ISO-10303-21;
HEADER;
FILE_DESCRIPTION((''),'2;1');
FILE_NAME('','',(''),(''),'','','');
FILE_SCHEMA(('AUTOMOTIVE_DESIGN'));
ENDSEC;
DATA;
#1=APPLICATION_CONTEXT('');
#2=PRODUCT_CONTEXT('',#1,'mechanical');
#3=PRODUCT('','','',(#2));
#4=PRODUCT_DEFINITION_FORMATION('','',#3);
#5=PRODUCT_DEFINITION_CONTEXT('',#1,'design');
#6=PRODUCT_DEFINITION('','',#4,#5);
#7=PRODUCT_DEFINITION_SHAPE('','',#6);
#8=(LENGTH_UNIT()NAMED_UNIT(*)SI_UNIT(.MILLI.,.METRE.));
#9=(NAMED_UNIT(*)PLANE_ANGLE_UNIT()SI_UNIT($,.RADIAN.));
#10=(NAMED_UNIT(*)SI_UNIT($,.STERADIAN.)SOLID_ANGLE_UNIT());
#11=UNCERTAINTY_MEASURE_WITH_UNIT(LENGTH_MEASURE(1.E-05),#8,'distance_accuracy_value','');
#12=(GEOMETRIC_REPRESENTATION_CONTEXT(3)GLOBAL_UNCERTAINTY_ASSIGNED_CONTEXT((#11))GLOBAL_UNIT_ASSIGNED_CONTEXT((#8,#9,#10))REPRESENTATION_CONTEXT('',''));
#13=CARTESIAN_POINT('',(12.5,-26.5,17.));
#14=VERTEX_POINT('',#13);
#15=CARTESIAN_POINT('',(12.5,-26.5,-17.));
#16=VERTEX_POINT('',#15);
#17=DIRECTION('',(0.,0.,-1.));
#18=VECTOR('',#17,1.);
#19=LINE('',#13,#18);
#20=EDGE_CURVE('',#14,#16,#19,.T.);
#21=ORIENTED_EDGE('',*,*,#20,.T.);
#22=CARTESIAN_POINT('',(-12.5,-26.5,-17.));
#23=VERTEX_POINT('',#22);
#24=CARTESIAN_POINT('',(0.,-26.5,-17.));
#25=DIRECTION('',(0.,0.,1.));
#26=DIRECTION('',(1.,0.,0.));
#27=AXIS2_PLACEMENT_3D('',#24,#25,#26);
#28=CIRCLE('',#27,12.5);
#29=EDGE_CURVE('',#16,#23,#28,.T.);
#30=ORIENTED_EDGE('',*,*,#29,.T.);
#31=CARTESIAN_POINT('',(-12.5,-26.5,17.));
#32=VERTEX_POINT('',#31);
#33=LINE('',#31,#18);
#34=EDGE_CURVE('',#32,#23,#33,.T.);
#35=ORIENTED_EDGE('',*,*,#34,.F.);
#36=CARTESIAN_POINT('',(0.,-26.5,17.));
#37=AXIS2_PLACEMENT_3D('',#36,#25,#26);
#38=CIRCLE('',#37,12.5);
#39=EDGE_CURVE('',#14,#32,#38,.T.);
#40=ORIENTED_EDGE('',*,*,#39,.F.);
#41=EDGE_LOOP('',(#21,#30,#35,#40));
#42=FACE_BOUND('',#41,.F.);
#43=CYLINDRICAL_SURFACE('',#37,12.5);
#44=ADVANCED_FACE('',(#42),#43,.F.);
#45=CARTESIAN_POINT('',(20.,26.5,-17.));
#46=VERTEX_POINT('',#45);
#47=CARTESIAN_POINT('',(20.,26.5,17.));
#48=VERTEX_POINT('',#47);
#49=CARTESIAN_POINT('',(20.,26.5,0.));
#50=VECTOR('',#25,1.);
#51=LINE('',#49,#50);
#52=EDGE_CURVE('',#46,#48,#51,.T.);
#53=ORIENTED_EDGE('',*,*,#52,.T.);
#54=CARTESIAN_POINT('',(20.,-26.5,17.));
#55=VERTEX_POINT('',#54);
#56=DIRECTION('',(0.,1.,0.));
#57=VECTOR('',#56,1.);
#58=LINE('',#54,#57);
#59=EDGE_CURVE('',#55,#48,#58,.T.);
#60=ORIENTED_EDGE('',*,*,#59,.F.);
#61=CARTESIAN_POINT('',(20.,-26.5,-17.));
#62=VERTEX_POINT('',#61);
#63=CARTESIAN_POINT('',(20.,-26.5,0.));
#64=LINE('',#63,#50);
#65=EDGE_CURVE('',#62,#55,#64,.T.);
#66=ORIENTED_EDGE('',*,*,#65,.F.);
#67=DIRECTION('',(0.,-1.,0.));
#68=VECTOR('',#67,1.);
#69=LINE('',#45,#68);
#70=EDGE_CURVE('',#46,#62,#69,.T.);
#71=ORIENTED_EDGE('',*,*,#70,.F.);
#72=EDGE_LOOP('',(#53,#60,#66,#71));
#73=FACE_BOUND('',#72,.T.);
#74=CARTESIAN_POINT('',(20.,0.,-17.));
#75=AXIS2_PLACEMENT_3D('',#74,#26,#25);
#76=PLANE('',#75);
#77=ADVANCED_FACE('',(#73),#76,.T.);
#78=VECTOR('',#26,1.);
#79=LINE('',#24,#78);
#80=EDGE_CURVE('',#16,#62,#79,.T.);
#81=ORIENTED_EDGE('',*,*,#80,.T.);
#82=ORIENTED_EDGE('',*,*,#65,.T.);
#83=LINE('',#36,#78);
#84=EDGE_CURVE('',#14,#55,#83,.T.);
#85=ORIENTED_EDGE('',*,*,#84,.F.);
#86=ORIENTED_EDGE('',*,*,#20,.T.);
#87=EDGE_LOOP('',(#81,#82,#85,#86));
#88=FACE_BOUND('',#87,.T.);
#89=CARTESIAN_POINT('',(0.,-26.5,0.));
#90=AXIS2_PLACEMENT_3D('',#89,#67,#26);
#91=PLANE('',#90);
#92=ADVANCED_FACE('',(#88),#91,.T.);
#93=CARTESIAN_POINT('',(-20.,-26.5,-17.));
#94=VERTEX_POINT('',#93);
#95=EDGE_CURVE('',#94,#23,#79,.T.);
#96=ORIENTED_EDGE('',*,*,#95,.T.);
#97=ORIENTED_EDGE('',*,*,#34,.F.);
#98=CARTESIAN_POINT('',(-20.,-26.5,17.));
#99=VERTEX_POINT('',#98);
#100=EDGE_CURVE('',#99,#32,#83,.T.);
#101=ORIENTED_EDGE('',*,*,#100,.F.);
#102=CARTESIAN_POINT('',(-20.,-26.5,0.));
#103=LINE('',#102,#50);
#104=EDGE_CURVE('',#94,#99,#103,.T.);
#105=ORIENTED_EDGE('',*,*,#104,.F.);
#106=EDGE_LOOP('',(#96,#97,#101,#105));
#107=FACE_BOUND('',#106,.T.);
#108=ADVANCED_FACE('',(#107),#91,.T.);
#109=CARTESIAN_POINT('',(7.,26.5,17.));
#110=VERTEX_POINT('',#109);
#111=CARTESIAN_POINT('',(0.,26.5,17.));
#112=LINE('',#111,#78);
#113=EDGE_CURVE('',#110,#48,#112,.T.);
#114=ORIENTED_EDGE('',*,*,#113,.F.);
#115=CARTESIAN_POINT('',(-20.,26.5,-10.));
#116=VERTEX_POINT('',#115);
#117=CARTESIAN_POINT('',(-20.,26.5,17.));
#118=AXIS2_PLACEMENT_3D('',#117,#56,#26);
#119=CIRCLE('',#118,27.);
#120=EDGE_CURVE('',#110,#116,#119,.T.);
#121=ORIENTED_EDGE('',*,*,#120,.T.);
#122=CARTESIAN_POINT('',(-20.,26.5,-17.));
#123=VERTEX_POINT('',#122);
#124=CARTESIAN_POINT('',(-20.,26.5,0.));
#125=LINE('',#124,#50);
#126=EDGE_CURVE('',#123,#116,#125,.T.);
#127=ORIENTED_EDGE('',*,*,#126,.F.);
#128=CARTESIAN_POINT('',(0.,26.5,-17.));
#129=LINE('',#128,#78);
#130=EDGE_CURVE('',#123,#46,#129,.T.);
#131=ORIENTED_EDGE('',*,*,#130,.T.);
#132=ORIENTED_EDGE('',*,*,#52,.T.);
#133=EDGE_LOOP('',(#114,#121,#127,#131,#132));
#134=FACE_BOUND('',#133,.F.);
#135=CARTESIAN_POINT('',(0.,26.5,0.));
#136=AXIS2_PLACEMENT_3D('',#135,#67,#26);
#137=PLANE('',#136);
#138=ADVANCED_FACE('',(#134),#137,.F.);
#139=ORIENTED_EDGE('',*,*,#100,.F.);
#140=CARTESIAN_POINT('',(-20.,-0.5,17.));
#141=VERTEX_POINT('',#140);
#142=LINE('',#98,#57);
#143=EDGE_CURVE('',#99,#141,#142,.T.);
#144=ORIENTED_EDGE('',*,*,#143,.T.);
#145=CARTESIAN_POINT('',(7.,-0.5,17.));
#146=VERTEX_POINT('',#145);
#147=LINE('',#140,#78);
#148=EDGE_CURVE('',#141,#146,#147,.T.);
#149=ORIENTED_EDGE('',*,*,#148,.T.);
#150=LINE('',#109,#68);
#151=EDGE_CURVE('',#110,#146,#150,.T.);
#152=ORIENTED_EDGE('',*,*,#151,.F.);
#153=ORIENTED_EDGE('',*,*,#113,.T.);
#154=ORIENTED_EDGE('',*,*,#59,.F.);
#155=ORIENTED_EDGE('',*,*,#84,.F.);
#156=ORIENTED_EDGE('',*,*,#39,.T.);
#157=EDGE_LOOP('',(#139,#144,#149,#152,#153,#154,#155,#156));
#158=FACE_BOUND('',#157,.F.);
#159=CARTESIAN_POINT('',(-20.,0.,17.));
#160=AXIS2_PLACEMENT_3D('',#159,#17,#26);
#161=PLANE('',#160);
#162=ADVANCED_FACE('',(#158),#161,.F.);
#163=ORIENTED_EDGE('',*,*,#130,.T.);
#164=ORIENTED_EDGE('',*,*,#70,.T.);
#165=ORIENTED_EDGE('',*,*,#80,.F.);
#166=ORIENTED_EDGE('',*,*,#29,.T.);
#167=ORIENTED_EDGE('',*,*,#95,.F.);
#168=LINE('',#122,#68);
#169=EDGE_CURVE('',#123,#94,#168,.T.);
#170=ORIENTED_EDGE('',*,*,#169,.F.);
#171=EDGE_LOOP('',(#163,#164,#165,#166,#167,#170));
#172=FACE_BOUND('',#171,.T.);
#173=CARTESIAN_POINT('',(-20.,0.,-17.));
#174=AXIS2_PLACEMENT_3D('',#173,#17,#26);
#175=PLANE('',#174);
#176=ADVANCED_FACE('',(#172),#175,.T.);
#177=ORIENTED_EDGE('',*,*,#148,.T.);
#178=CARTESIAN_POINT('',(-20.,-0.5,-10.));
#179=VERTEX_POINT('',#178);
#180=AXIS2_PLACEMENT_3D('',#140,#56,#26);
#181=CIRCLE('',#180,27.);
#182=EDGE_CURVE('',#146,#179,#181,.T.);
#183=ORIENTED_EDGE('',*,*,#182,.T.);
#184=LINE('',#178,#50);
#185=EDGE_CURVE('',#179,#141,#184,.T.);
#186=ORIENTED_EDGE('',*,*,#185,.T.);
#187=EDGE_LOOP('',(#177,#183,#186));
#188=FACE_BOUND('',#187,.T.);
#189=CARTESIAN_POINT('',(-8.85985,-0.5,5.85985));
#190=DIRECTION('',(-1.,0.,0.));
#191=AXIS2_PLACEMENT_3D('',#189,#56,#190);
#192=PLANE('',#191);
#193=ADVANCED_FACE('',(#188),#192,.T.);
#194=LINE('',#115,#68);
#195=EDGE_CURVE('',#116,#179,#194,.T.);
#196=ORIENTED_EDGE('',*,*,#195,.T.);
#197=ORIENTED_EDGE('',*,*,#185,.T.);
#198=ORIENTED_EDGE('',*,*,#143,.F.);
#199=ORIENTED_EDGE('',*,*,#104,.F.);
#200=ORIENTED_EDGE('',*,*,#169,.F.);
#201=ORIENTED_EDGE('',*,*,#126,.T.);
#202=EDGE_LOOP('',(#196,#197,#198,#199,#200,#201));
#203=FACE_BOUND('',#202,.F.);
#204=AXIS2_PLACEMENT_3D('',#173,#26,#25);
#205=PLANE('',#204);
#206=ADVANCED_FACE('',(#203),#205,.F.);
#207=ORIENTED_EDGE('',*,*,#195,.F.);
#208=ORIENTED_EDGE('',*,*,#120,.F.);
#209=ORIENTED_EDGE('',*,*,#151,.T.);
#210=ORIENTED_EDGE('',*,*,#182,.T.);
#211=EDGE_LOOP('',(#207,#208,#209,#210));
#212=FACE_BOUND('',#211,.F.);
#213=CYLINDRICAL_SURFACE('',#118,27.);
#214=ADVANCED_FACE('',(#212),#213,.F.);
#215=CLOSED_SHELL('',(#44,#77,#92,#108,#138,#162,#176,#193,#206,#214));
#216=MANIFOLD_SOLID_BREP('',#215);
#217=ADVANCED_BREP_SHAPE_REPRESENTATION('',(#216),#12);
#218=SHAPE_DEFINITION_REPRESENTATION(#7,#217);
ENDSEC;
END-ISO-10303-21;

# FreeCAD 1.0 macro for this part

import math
import FreeCAD as App
import Part
import Sketcher
Q = App.Units.Quantity

doc = App.newDocument("Part")
body = doc.addObject("PartDesign::Body", "Body")

# Sketch on XZ plane
sketch1 = doc.addObject("Sketcher::SketchObject", "Sketch")
body.addObject(sketch1)
sketch1.AttachmentSupport = (doc.XZ_Plane, [""])
sketch1.MapMode = "FlatFace"
sketch1.addGeometry([
    Part.LineSegment(App.Vector(-20, 17, 0), App.Vector(-20, -17, 0)),
    Part.LineSegment(App.Vector(-20, -17, 0), App.Vector(20, -17, 0)),
    Part.LineSegment(App.Vector(20, -17, 0), App.Vector(20, 17, 0)),
    Part.LineSegment(App.Vector(20, 17, 0), App.Vector(-20, 17, 0)),
], False)
sketch1.addConstraint([
    Sketcher.Constraint("Coincident", 0, 2, 1, 1),
    Sketcher.Constraint("Coincident", 1, 2, 2, 1),
    Sketcher.Constraint("Coincident", 2, 2, 3, 1),
    Sketcher.Constraint("Coincident", 3, 2, 0, 1),
    Sketcher.Constraint("Vertical", 0),
    Sketcher.Constraint("Horizontal", 1),
    Sketcher.Constraint("Vertical", 2),
    Sketcher.Constraint("Horizontal", 3),
    Sketcher.Constraint("Symmetric", 0, 2, 2, 2, -1, 1),
    Sketcher.Constraint("DistanceX", 1, 1, 1, 2, Q("40 mm")),
    Sketcher.Constraint("DistanceY", 0, 2, 0, 1, Q("34 mm")),
])
pad1 = doc.addObject("PartDesign::Pad", "Pad")
body.addObject(pad1)
pad1.Profile = sketch1
pad1.Length = 53
pad1.Midplane = True

# Sketch on XY plane
sketch2 = doc.addObject("Sketcher::SketchObject", "Sketch001")
body.addObject(sketch2)
sketch2.AttachmentSupport = (doc.XY_Plane, [""])
sketch2.MapMode = "FlatFace"
sketch2.AttachmentOffset = App.Placement(App.Vector(0, 0, 17), App.Rotation())
sketch2.addGeometry([
    Part.LineSegment(App.Vector(-12, -26, 0), App.Vector(12, -26, 0)),
    Part.ArcOfCircle(Part.Circle(App.Vector(0, -26, 0), App.Vector(0, 0, 1), 12), math.radians(0), math.radians(180)),
], False)
sketch2.addConstraint([
    Sketcher.Constraint("Coincident", 0, 1, 1, 2),
    Sketcher.Constraint("Coincident", 1, 1, 0, 2),
    Sketcher.Constraint("Horizontal", 0),
    Sketcher.Constraint("PointOnObject", 1, 3, -2),
    Sketcher.Constraint("Horizontal", 1, 3, 0, 1),
    Sketcher.Constraint("Radius", 1, Q("12.5 mm")),
    Sketcher.Constraint("DistanceY", 1, 3, -1, 1, Q("26.5 mm")),
])
pocket1 = doc.addObject("PartDesign::Pocket", "Pocket")
body.addObject(pocket1)
pocket1.Profile = sketch2
pocket1.Type = "ThroughAll"

# Sketch on XZ plane
sketch3 = doc.addObject("Sketcher::SketchObject", "Sketch002")
body.addObject(sketch3)
sketch3.AttachmentSupport = (doc.XZ_Plane, [""])
sketch3.MapMode = "FlatFace"
sketch3.AttachmentOffset = App.Placement(App.Vector(0, 0, -26.5), App.Rotation())
sketch3.addGeometry([
    Part.LineSegment(App.Vector(-20, 17, 0), App.Vector(7, 17, 0)),
    Part.ArcOfCircle(Part.Circle(App.Vector(-20, 17, 0), App.Vector(0, 0, 1), 27), math.radians(-90), math.radians(0)),
    Part.LineSegment(App.Vector(-20, -10, 0), App.Vector(-20, 17, 0)),
], False)
sketch3.addConstraint([
    Sketcher.Constraint("Coincident", 0, 2, 1, 2),
    Sketcher.Constraint("Coincident", 1, 1, 2, 1),
    Sketcher.Constraint("Coincident", 2, 2, 0, 1),
    Sketcher.Constraint("Horizontal", 0),
    Sketcher.Constraint("Vertical", 2),
    Sketcher.Constraint("Coincident", 2, 2, 1, 3),
    Sketcher.Constraint("Radius", 1, Q("27 mm")),
    Sketcher.Constraint("DistanceX", 1, 3, -1, 1, Q("20 mm")),
    Sketcher.Constraint("DistanceY", -1, 1, 1, 3, Q("17 mm")),
])
pocket2 = doc.addObject("PartDesign::Pocket", "Pocket001")
body.addObject(pocket2)
pocket2.Profile = sketch3
pocket2.Length = 27
pocket2.Reversed = True

doc.recompute()
